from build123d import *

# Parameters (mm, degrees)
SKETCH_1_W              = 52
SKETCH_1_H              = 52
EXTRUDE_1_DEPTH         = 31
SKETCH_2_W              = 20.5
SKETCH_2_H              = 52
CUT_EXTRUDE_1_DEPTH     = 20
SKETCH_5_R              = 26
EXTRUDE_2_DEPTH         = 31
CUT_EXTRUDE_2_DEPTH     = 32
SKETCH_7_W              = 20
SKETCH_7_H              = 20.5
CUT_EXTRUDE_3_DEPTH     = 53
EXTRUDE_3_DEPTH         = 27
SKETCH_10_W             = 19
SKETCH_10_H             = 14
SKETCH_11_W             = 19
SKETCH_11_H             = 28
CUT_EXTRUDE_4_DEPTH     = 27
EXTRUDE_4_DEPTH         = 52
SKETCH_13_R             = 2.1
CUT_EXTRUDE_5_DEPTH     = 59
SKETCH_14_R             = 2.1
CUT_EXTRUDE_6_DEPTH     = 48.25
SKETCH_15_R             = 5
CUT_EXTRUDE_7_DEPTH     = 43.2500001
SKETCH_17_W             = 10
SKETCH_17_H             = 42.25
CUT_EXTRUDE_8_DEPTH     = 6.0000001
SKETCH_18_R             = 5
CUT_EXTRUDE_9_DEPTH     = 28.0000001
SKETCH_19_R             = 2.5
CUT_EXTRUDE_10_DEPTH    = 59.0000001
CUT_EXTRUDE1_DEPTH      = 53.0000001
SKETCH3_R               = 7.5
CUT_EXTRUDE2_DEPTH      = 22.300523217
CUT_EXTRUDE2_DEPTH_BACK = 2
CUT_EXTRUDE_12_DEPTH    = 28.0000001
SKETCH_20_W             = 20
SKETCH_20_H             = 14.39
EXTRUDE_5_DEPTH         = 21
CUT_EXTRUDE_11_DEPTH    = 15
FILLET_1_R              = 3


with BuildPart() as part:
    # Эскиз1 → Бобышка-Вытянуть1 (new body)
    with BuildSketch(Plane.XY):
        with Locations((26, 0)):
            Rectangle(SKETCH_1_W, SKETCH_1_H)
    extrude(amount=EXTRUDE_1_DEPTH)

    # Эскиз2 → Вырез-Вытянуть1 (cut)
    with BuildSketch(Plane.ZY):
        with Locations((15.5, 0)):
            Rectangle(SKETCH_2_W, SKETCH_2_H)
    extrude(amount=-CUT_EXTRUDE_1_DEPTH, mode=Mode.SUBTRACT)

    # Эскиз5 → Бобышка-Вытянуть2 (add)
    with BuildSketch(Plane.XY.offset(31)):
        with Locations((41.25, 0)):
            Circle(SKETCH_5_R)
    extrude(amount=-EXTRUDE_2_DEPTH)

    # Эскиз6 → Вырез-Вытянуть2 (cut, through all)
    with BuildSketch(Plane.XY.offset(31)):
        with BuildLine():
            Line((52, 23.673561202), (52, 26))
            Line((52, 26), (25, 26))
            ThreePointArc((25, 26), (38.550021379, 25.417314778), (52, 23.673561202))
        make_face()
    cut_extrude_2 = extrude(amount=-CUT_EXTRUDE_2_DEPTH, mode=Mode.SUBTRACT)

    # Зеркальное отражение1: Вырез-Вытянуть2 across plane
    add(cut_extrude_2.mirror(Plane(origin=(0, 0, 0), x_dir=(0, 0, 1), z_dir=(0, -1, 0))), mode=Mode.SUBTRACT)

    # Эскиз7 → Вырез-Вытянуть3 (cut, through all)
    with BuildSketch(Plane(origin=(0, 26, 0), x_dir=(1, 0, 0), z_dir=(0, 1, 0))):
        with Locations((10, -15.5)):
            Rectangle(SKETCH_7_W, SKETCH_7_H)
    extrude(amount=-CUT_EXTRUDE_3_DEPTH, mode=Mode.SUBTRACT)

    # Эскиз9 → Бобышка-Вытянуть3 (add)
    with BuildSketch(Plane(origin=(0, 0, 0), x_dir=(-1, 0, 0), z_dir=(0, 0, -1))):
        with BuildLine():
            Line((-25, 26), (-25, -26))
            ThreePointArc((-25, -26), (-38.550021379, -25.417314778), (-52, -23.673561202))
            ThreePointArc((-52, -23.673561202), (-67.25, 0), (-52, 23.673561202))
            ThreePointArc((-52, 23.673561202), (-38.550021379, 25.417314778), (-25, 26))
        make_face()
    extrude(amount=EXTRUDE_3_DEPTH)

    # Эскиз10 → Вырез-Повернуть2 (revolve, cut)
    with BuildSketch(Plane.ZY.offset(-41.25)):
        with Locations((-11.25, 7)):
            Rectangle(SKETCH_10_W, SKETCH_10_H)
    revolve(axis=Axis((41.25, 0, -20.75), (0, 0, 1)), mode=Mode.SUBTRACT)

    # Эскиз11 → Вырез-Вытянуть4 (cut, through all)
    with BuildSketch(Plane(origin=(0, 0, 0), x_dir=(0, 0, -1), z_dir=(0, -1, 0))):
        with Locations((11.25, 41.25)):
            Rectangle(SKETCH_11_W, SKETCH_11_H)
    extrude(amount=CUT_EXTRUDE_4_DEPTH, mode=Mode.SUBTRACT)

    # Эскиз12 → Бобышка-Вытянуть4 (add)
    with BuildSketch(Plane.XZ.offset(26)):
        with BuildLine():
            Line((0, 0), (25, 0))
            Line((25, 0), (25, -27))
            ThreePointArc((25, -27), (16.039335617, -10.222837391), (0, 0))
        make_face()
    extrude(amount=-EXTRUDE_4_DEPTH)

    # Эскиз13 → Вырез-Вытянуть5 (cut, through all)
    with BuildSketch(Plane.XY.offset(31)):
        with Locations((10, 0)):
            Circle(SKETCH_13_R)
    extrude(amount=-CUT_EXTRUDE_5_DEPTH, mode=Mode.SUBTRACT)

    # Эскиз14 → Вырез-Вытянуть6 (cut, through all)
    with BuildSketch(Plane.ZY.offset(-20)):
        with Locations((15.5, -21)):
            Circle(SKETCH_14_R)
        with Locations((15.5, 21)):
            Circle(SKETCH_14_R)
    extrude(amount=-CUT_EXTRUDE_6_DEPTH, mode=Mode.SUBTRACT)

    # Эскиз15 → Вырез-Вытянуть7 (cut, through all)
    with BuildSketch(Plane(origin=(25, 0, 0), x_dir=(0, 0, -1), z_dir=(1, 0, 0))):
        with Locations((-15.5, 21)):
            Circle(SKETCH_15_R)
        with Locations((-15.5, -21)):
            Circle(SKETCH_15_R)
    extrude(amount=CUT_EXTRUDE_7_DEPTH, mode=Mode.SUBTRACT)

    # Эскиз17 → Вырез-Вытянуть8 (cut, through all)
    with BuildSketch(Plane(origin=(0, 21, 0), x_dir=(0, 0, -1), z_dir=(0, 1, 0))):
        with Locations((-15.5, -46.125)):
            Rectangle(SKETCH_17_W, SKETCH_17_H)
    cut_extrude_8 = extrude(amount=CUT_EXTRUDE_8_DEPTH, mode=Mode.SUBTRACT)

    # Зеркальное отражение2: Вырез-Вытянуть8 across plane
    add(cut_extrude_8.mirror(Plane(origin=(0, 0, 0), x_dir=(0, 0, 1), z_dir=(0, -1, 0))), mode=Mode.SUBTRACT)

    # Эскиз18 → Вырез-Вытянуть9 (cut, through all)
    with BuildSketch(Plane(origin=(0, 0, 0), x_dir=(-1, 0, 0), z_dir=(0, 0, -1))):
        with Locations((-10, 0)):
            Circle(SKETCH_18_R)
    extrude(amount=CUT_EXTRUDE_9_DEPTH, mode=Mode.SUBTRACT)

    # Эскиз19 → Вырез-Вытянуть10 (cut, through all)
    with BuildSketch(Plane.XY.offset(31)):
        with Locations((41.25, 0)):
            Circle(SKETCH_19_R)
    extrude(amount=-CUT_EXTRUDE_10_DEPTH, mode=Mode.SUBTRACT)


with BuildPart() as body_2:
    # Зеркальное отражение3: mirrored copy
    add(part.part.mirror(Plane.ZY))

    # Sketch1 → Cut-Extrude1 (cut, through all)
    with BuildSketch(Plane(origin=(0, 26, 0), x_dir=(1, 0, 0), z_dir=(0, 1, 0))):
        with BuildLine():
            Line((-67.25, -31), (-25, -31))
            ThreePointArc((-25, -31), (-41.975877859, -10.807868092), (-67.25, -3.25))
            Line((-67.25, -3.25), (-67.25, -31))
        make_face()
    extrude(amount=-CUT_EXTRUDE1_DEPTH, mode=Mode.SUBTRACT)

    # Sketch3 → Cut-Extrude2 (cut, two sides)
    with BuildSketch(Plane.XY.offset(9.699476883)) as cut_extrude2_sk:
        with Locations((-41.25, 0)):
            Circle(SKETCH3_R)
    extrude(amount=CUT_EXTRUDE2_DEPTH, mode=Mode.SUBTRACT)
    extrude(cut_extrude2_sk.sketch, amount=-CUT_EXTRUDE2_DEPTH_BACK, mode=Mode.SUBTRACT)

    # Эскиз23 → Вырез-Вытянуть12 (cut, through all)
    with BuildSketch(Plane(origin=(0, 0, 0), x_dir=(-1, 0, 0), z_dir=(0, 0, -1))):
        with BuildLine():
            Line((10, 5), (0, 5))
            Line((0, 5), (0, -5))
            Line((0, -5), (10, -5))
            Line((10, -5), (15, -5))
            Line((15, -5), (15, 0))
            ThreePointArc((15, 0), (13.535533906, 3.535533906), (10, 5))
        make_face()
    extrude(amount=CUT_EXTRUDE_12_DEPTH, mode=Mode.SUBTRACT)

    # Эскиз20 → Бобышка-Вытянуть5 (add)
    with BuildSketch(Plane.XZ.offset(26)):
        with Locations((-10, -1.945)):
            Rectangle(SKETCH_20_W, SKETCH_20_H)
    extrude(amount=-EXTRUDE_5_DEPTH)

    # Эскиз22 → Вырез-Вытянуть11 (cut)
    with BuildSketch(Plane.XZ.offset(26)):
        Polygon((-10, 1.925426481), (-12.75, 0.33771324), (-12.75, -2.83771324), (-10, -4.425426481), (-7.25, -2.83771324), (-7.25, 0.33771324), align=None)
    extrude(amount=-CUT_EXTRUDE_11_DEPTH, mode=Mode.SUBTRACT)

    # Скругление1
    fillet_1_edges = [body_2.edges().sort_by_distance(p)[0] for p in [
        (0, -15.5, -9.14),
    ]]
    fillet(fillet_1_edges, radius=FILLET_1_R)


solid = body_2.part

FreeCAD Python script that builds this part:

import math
import FreeCAD as App
import Part
import Sketcher
from FreeCAD import Vector
Q = App.Units.Quantity


def edges_at(feature, points):
    """Names of the edges that pass closest to the given points."""
    edges = feature.Shape.Edges
    near = lambda p: min(range(len(edges)), key=lambda i: edges[i].distToShape(Part.Vertex(*p))[0])
    return sorted({f"Edge{near(p) + 1}" for p in points})

doc = App.newDocument("Part")
params = doc.addObject("Spreadsheet::Sheet", "Params")
for row, (alias, value) in enumerate([
    ("sketch1_width", "52 mm"),
    ("pad1_length", "31 mm"),
    ("sketch2_width", "52 mm"),
    ("sketch2_height", "20.5 mm"),
    ("pocket1_length", "20 mm"),
    ("sketch3_diameter", "52 mm"),
    ("pad2_length", "31 mm"),
    ("sketch4_width", "27 mm"),
    ("sketch5_width", "20 mm"),
    ("sketch5_height", "20.5 mm"),
    ("sketch6_radius", "26 mm"),
    ("sketch6_height", "52 mm"),
    ("pad3_length", "27 mm"),
    ("sketch7_width", "14 mm"),
    ("sketch7_height", "19 mm"),
    ("groove_angle", "360 deg"),
    ("sketch8_width", "28 mm"),
    ("sketch8_height", "19 mm"),
    ("sketch9_radius", "37.5 mm"),
    ("sketch9_width", "25 mm"),
    ("sketch9_height", "27 mm"),
    ("pad4_length", "52 mm"),
    ("sketch10_diameter", "4.2 mm"),
    ("sketch11_diameter", "4.2 mm"),
    ("sketch12_diameter", "10 mm"),
    ("sketch13_height", "10 mm"),
    ("sketch13_width", "42.25 mm"),
    ("sketch14_diameter", "10 mm"),
    ("sketch15_diameter", "5 mm"),
    ("sketch16_width", "42.25 mm"),
    ("sketch16_height", "27.75 mm"),
    ("sketch17_diameter", "15 mm"),
    ("pocket12_length", "22.300523 mm"),
    ("pocket12_length2", "2 mm"),
    ("sketch18_radius", "5 mm"),
    ("sketch19_width", "20 mm"),
    ("sketch19_height", "14.39 mm"),
    ("pad5_length", "21 mm"),
    ("pocket14_length", "15 mm"),
    ("fillet_radius", "3 mm"),
], start=1):
    params.set(f"A{row}", alias)
    params.set(f"B{row}", "=" + value)
    params.setAlias(f"B{row}", alias)

body = doc.addObject("PartDesign::Body", "Body")

# Sketch on XY plane
sketch1 = doc.addObject("Sketcher::SketchObject", "Sketch")
body.addObject(sketch1)
sketch1.AttachmentSupport = (doc.XY_Plane, [""])
sketch1.MapMode = "FlatFace"
sketch1.addGeometry(Part.LineSegment(Vector(0, 26, 0), Vector(0, -26, 0)), False)
sketch1.addGeometry(Part.LineSegment(Vector(0, -26, 0), Vector(52, -26, 0)), False)
sketch1.addGeometry(Part.LineSegment(Vector(52, -26, 0), Vector(52, 26, 0)), False)
sketch1.addGeometry(Part.LineSegment(Vector(52, 26, 0), Vector(0, 26, 0)), False)
sketch1.addConstraint(Sketcher.Constraint("Coincident", 0, 2, 1, 1))
sketch1.addConstraint(Sketcher.Constraint("Coincident", 1, 2, 2, 1))
sketch1.addConstraint(Sketcher.Constraint("Coincident", 2, 2, 3, 1))
sketch1.addConstraint(Sketcher.Constraint("Coincident", 3, 2, 0, 1))
sketch1.addConstraint(Sketcher.Constraint("Vertical", 0))
sketch1.addConstraint(Sketcher.Constraint("Horizontal", 1))
sketch1.addConstraint(Sketcher.Constraint("Vertical", 2))
sketch1.addConstraint(Sketcher.Constraint("Horizontal", 3))
sketch1.addConstraint(Sketcher.Constraint("Symmetric", 0, 2, 3, 2, -1, 1))
sketch1.addConstraint(Sketcher.Constraint("Equal", 3, 0))
sketch1.addConstraint(Sketcher.Constraint("DistanceX", 1, 1, 1, 2, 52.0))
sketch1.setExpression("Constraints[10]", "Params.sketch1_width")
pad1 = doc.addObject("PartDesign::Pad", "Pad")
body.addObject(pad1)
pad1.Profile = sketch1
pad1.setExpression("Length", "Params.pad1_length")

# Sketch on YZ plane
sketch2 = doc.addObject("Sketcher::SketchObject", "Sketch001")
body.addObject(sketch2)
sketch2.AttachmentSupport = (doc.YZ_Plane, [""])
sketch2.MapMode = "FlatFace"
sketch2.addGeometry(Part.LineSegment(Vector(26, 5, 0), Vector(-26, 5, 0)), False)
sketch2.addGeometry(Part.LineSegment(Vector(-26, 5, 0), Vector(-26, 26, 0)), False)
sketch2.addGeometry(Part.LineSegment(Vector(-26, 26, 0), Vector(26, 26, 0)), False)
sketch2.addGeometry(Part.LineSegment(Vector(26, 26, 0), Vector(26, 5, 0)), False)
sketch2.addConstraint(Sketcher.Constraint("Coincident", 0, 2, 1, 1))
sketch2.addConstraint(Sketcher.Constraint("Coincident", 1, 2, 2, 1))
sketch2.addConstraint(Sketcher.Constraint("Coincident", 2, 2, 3, 1))
sketch2.addConstraint(Sketcher.Constraint("Coincident", 3, 2, 0, 1))
sketch2.addConstraint(Sketcher.Constraint("Horizontal", 0))
sketch2.addConstraint(Sketcher.Constraint("Vertical", 1))
sketch2.addConstraint(Sketcher.Constraint("Horizontal", 2))
sketch2.addConstraint(Sketcher.Constraint("Vertical", 3))
sketch2.addConstraint(Sketcher.Constraint("DistanceX", 0, 2, 0, 1, 52.0))
sketch2.addConstraint(Sketcher.Constraint("DistanceY", 1, 1, 1, 2, 20.5))
sketch2.addConstraint(Sketcher.Constraint("DistanceX", 0, 2, -1, 1, 26.0))
sketch2.addConstraint(Sketcher.Constraint("DistanceY", -1, 1, 0, 2, 5.25))
sketch2.setExpression("Constraints[8]", "Params.sketch2_width")
sketch2.setExpression("Constraints[9]", "Params.sketch2_height")
pocket1 = doc.addObject("PartDesign::Pocket", "Pocket")
body.addObject(pocket1)
pocket1.Profile = sketch2
pocket1.setExpression("Length", "Params.pocket1_length")
pocket1.Reversed = True

# Sketch on XY plane
sketch3 = doc.addObject("Sketcher::SketchObject", "Sketch002")
body.addObject(sketch3)
sketch3.AttachmentSupport = (doc.XY_Plane, [""])
sketch3.MapMode = "FlatFace"
sketch3.AttachmentOffset = App.Placement(Vector(0, 0, 31), App.Rotation())
sketch3.addGeometry(Part.Circle(Vector(41, 0, 0), Vector(0, 0, 1), 26), False)
sketch3.addConstraint(Sketcher.Constraint("PointOnObject", 0, 3, -1))
sketch3.addConstraint(Sketcher.Constraint("Diameter", 0, 52.0))
sketch3.addConstraint(Sketcher.Constraint("DistanceX", -1, 1, 0, 3, 41.25))
sketch3.setExpression("Constraints[1]", "Params.sketch3_diameter")
pad2 = doc.addObject("PartDesign::Pad", "Pad001")
body.addObject(pad2)
pad2.Profile = sketch3
pad2.setExpression("Length", "Params.pad2_length")
pad2.Reversed = True

# Sketch on XY plane
sketch4 = doc.addObject("Sketcher::SketchObject", "Sketch003")
body.addObject(sketch4)
sketch4.AttachmentSupport = (doc.XY_Plane, [""])
sketch4.MapMode = "FlatFace"
sketch4.AttachmentOffset = App.Placement(Vector(0, 0, 31), App.Rotation())
sketch4.addGeometry(Part.LineSegment(Vector(52, 23.7, 0), Vector(52, 26, 0)), False)
sketch4.addGeometry(Part.LineSegment(Vector(52, 26, 0), Vector(25, 26, 0)), False)
sketch4.addGeometry(Part.ArcOfCircle(Part.Circle(Vector(25, -131.8, 0), Vector(0, 0, 1), 157.8), math.radians(80.15), math.radians(90)), False)
sketch4.addConstraint(Sketcher.Constraint("Coincident", 0, 2, 1, 1))
sketch4.addConstraint(Sketcher.Constraint("Tangent", 1, 2, 2, 2))
sketch4.addConstraint(Sketcher.Constraint("Coincident", 2, 1, 0, 1))
sketch4.addConstraint(Sketcher.Constraint("Vertical", 0))
sketch4.addConstraint(Sketcher.Constraint("Horizontal", 1))
sketch4.addConstraint(Sketcher.Constraint("DistanceX", 1, 2, 1, 1, 27.0))
sketch4.addConstraint(Sketcher.Constraint("DistanceX", -1, 1, 2, 3, 25.0))
sketch4.addConstraint(Sketcher.Constraint("DistanceY", -1, 1, 0, 2, 26.0))
sketch4.addConstraint(Sketcher.Constraint("Radius", 2, 157.840455))
sketch4.setExpression("Constraints[5]", "Params.sketch4_width")
pocket2 = doc.addObject("PartDesign::Pocket", "Pocket001")
body.addObject(pocket2)
pocket2.Profile = sketch4
pocket2.Type = "ThroughAll"
doc.recompute()

mirrored = doc.addObject("PartDesign::Mirrored", "Mirrored")
body.addObject(mirrored)
mirrored.Originals = [pocket2]
mirrored.MirrorPlane = (doc.XZ_Plane, [""])
body.Tip = mirrored

# Sketch on XZ plane
sketch5 = doc.addObject("Sketcher::SketchObject", "Sketch004")
body.addObject(sketch5)
sketch5.AttachmentSupport = (doc.XZ_Plane, [""])
sketch5.MapMode = "FlatFace"
sketch5.AttachmentOffset = App.Placement(Vector(0, 0, -26), App.Rotation())
sketch5.addGeometry(Part.LineSegment(Vector(0, 5, 0), Vector(0, 26, 0)), False)
sketch5.addGeometry(Part.LineSegment(Vector(0, 26, 0), Vector(20, 26, 0)), False)
sketch5.addGeometry(Part.LineSegment(Vector(20, 26, 0), Vector(20, 5, 0)), False)
sketch5.addGeometry(Part.LineSegment(Vector(20, 5, 0), Vector(0, 5, 0)), False)
sketch5.addConstraint(Sketcher.Constraint("Coincident", 0, 2, 1, 1))
sketch5.addConstraint(Sketcher.Constraint("Coincident", 1, 2, 2, 1))
sketch5.addConstraint(Sketcher.Constraint("Coincident", 2, 2, 3, 1))
sketch5.addConstraint(Sketcher.Constraint("Coincident", 3, 2, 0, 1))
sketch5.addConstraint(Sketcher.Constraint("Vertical", 0))
sketch5.addConstraint(Sketcher.Constraint("Horizontal", 1))
sketch5.addConstraint(Sketcher.Constraint("Vertical", 2))
sketch5.addConstraint(Sketcher.Constraint("Horizontal", 3))
sketch5.addConstraint(Sketcher.Constraint("PointOnObject", 0, 2, -2))
sketch5.addConstraint(Sketcher.Constraint("DistanceX", 1, 1, 1, 2, 20.0))
sketch5.addConstraint(Sketcher.Constraint("DistanceY", 0, 1, 0, 2, 20.5))
sketch5.addConstraint(Sketcher.Constraint("DistanceY", -1, 1, 0, 2, 25.75))
sketch5.setExpression("Constraints[9]", "Params.sketch5_width")
sketch5.setExpression("Constraints[10]", "Params.sketch5_height")
pocket3 = doc.addObject("PartDesign::Pocket", "Pocket002")
body.addObject(pocket3)
pocket3.Profile = sketch5
pocket3.Type = "ThroughAll"
pocket3.Reversed = True

# Sketch on XY plane
sketch6 = doc.addObject("Sketcher::SketchObject", "Sketch005")
body.addObject(sketch6)
sketch6.AttachmentSupport = (doc.XY_Plane, [""])
sketch6.MapMode = "FlatFace"
sketch6.addGeometry(Part.LineSegment(Vector(25, -26, 0), Vector(25, 26, 0)), False)
sketch6.addGeometry(Part.ArcOfCircle(Part.Circle(Vector(25, -132, 0), Vector(0, 0, 1), 158), math.radians(80.15), math.radians(90)), False)
sketch6.addGeometry(Part.ArcOfCircle(Part.Circle(Vector(41, 0, 0), Vector(0, 0, 1), 26), math.radians(-66), math.radians(66)), False)
sketch6.addGeometry(Part.ArcOfCircle(Part.Circle(Vector(25, 132, 0), Vector(0, 0, 1), 158), math.radians(-90), math.radians(-80.15)), False)
sketch6.addConstraint(Sketcher.Constraint("Coincident", 0, 2, 1, 2))
sketch6.addConstraint(Sketcher.Constraint("Coincident", 1, 1, 2, 2))
sketch6.addConstraint(Sketcher.Constraint("Coincident", 2, 1, 3, 2))
sketch6.addConstraint(Sketcher.Constraint("Coincident", 3, 1, 0, 1))
sketch6.addConstraint(Sketcher.Constraint("Vertical", 0))
sketch6.addConstraint(Sketcher.Constraint("Equal", 1, 3))
sketch6.addConstraint(Sketcher.Constraint("Symmetric", 1, 3, 3, 3, -1))
sketch6.addConstraint(Sketcher.Constraint("PointOnObject", 2, 3, -1))
sketch6.addConstraint(Sketcher.Constraint("Vertical", 3, 3, 0, 2))
sketch6.addConstraint(Sketcher.Constraint("Radius", 2, 26.0))
sketch6.addConstraint(Sketcher.Constraint("DistanceY", 0, 1, 0, 2, 52.0))
sketch6.addConstraint(Sketcher.Constraint("DistanceX", -1, 1, 1, 3, 25.0))
sketch6.addConstraint(Sketcher.Constraint("DistanceX", -1, 1, 1, 1, 52.0))
sketch6.addConstraint(Sketcher.Constraint("DistanceX", -1, 1, 2, 3, 41.25))
sketch6.setExpression("Constraints[9]", "Params.sketch6_radius")
sketch6.setExpression("Constraints[10]", "Params.sketch6_height")
pad3 = doc.addObject("PartDesign::Pad", "Pad002")
body.addObject(pad3)
pad3.Profile = sketch6
pad3.setExpression("Length", "Params.pad3_length")
pad3.Reversed = True

# Sketch on YZ plane
sketch7 = doc.addObject("Sketcher::SketchObject", "Sketch006")
body.addObject(sketch7)
sketch7.AttachmentSupport = (doc.YZ_Plane, [""])
sketch7.MapMode = "FlatFace"
sketch7.AttachmentOffset = App.Placement(Vector(0, 0, 41.25), App.Rotation())
sketch7.addGeometry(Part.LineSegment(Vector(14, -21, 0), Vector(0, -21, 0)), False)
sketch7.addGeometry(Part.LineSegment(Vector(0, -21, 0), Vector(0, -2, 0)), False)
sketch7.addGeometry(Part.LineSegment(Vector(0, -2, 0), Vector(14, -2, 0)), False)
sketch7.addGeometry(Part.LineSegment(Vector(14, -2, 0), Vector(14, -21, 0)), False)
sketch7.addConstraint(Sketcher.Constraint("Coincident", 0, 2, 1, 1))
sketch7.addConstraint(Sketcher.Constraint("Coincident", 1, 2, 2, 1))
sketch7.addConstraint(Sketcher.Constraint("Coincident", 2, 2, 3, 1))
sketch7.addConstraint(Sketcher.Constraint("Coincident", 3, 2, 0, 1))
sketch7.addConstraint(Sketcher.Constraint("Horizontal", 0))
sketch7.addConstraint(Sketcher.Constraint("Vertical", 1))
sketch7.addConstraint(Sketcher.Constraint("Horizontal", 2))
sketch7.addConstraint(Sketcher.Constraint("Vertical", 3))
sketch7.addConstraint(Sketcher.Constraint("PointOnObject", 0, 2, -2))
sketch7.addConstraint(Sketcher.Constraint("DistanceX", 0, 2, 0, 1, 14.0))
sketch7.addConstraint(Sketcher.Constraint("DistanceY", 1, 1, 1, 2, 19.0))
sketch7.addConstraint(Sketcher.Constraint("DistanceY", 0, 2, -1, 1, 20.75))
sketch7.setExpression("Constraints[9]", "Params.sketch7_width")
sketch7.setExpression("Constraints[10]", "Params.sketch7_height")
groove = doc.addObject("PartDesign::Groove", "Groove")
body.addObject(groove)
groove.Profile = sketch7
groove.ReferenceAxis = (sketch7, ["V_Axis"])
groove.setExpression("Angle", "Params.groove_angle")

# Sketch on XZ plane
sketch8 = doc.addObject("Sketcher::SketchObject", "Sketch007")
body.addObject(sketch8)
sketch8.AttachmentSupport = (doc.XZ_Plane, [""])
sketch8.MapMode = "FlatFace"
sketch8.addGeometry(Part.LineSegment(Vector(55, -2, 0), Vector(27, -2, 0)), False)
sketch8.addGeometry(Part.LineSegment(Vector(27, -2, 0), Vector(27, -21, 0)), False)
sketch8.addGeometry(Part.LineSegment(Vector(27, -21, 0), Vector(55, -21, 0)), False)
sketch8.addGeometry(Part.LineSegment(Vector(55, -21, 0), Vector(55, -2, 0)), False)
sketch8.addConstraint(Sketcher.Constraint("Coincident", 0, 2, 1, 1))
sketch8.addConstraint(Sketcher.Constraint("Coincident", 1, 2, 2, 1))
sketch8.addConstraint(Sketcher.Constraint("Coincident", 2, 2, 3, 1))
sketch8.addConstraint(Sketcher.Constraint("Coincident", 3, 2, 0, 1))
sketch8.addConstraint(Sketcher.Constraint("Horizontal", 0))
sketch8.addConstraint(Sketcher.Constraint("Vertical", 1))
sketch8.addConstraint(Sketcher.Constraint("Horizontal", 2))
sketch8.addConstraint(Sketcher.Constraint("Vertical", 3))
sketch8.addConstraint(Sketcher.Constraint("DistanceX", 0, 2, 0, 1, 28.0))
sketch8.addConstraint(Sketcher.Constraint("DistanceY", 1, 2, 1, 1, 19.0))
sketch8.addConstraint(Sketcher.Constraint("DistanceX", -1, 1, 0, 2, 27.25))
sketch8.addConstraint(Sketcher.Constraint("DistanceY", 0, 2, -1, 1, 1.75))
sketch8.setExpression("Constraints[8]", "Params.sketch8_width")
sketch8.setExpression("Constraints[9]", "Params.sketch8_height")
pocket4 = doc.addObject("PartDesign::Pocket", "Pocket003")
body.addObject(pocket4)
pocket4.Profile = sketch8
pocket4.Type = "ThroughAll"
pocket4.Reversed = True

# Sketch on XZ plane
sketch9 = doc.addObject("Sketcher::SketchObject", "Sketch008")
body.addObject(sketch9)
sketch9.AttachmentSupport = (doc.XZ_Plane, [""])
sketch9.MapMode = "FlatFace"
sketch9.AttachmentOffset = App.Placement(Vector(0, 0, 26), App.Rotation())
sketch9.addGeometry(Part.LineSegment(Vector(25, 0, 0), Vector(0, 0, 0)), False)
sketch9.addGeometry(Part.ArcOfCircle(Part.Circle(Vector(-11, -36, 0), Vector(0, 0, 1), 38), math.radians(13), math.radians(72)), False)
sketch9.addGeometry(Part.LineSegment(Vector(25, -27, 0), Vector(25, 0, 0)), False)
sketch9.addConstraint(Sketcher.Constraint("Coincident", 0, 2, 1, 2))
sketch9.addConstraint(Sketcher.Constraint("Coincident", 1, 1, 2, 1))
sketch9.addConstraint(Sketcher.Constraint("Coincident", 2, 2, 0, 1))
sketch9.addConstraint(Sketcher.Constraint("Horizontal", 0))
sketch9.addConstraint(Sketcher.Constraint("Vertical", 2))
sketch9.addConstraint(Sketcher.Constraint("Coincident", 0, 2, -1, 1))
sketch9.addConstraint(Sketcher.Constraint("Radius", 1, 37.5))
sketch9.addConstraint(Sketcher.Constraint("DistanceX", 0, 2, 0, 1, 25.0))
sketch9.addConstraint(Sketcher.Constraint("DistanceY", 2, 1, 2, 2, 27.0))
sketch9.setExpression("Constraints[6]", "Params.sketch9_radius")
sketch9.setExpression("Constraints[7]", "Params.sketch9_width")
sketch9.setExpression("Constraints[8]", "Params.sketch9_height")
pad4 = doc.addObject("PartDesign::Pad", "Pad003")
body.addObject(pad4)
pad4.Profile = sketch9
pad4.setExpression("Length", "Params.pad4_length")
pad4.Reversed = True

# Sketch on XY plane
sketch10 = doc.addObject("Sketcher::SketchObject", "Sketch009")
body.addObject(sketch10)
sketch10.AttachmentSupport = (doc.XY_Plane, [""])
sketch10.MapMode = "FlatFace"
sketch10.AttachmentOffset = App.Placement(Vector(0, 0, 31), App.Rotation())
sketch10.addGeometry(Part.Circle(Vector(10, 0, 0), Vector(0, 0, 1), 2.1), False)
sketch10.addConstraint(Sketcher.Constraint("PointOnObject", 0, 3, -1))
sketch10.addConstraint(Sketcher.Constraint("Diameter", 0, 4.2))
sketch10.addConstraint(Sketcher.Constraint("DistanceX", -1, 1, 0, 3, 10.0))
sketch10.setExpression("Constraints[1]", "Params.sketch10_diameter")
pocket5 = doc.addObject("PartDesign::Pocket", "Pocket004")
body.addObject(pocket5)
pocket5.Profile = sketch10
pocket5.Type = "ThroughAll"

# Sketch on YZ plane
sketch11 = doc.addObject("Sketcher::SketchObject", "Sketch010")
body.addObject(sketch11)
sketch11.AttachmentSupport = (doc.YZ_Plane, [""])
sketch11.MapMode = "FlatFace"
sketch11.AttachmentOffset = App.Placement(Vector(0, 0, 20), App.Rotation())
sketch11.addGeometry(Part.Circle(Vector(-21, 15.5, 0), Vector(0, 0, 1), 2.1), False)
sketch11.addGeometry(Part.Circle(Vector(21, 15.5, 0), Vector(0, 0, 1), 2.1), False)
sketch11.addConstraint(Sketcher.Constraint("Equal", 0, 1))
sketch11.addConstraint(Sketcher.Constraint("Symmetric", 0, 3, 1, 3, -2))
sketch11.addConstraint(Sketcher.Constraint("Diameter", 0, 4.2))
sketch11.addConstraint(Sketcher.Constraint("DistanceX", 0, 3, -1, 1, 21.0))
sketch11.addConstraint(Sketcher.Constraint("DistanceY", -1, 1, 0, 3, 15.5))
sketch11.setExpression("Constraints[2]", "Params.sketch11_diameter")
pocket6 = doc.addObject("PartDesign::Pocket", "Pocket005")
body.addObject(pocket6)
pocket6.Profile = sketch11
pocket6.Type = "ThroughAll"
pocket6.Reversed = True

# Sketch on YZ plane
sketch12 = doc.addObject("Sketcher::SketchObject", "Sketch011")
body.addObject(sketch12)
sketch12.AttachmentSupport = (doc.YZ_Plane, [""])
sketch12.MapMode = "FlatFace"
sketch12.AttachmentOffset = App.Placement(Vector(0, 0, 25), App.Rotation())
sketch12.addGeometry(Part.Circle(Vector(21, 16, 0), Vector(0, 0, 1), 5), False)
sketch12.addGeometry(Part.Circle(Vector(-21, 16, 0), Vector(0, 0, 1), 5), False)
sketch12.addConstraint(Sketcher.Constraint("Equal", 0, 1))
sketch12.addConstraint(Sketcher.Constraint("Symmetric", 0, 3, 1, 3, -2))
sketch12.addConstraint(Sketcher.Constraint("Diameter", 0, 10.0))
sketch12.addConstraint(Sketcher.Constraint("DistanceX", -1, 1, 0, 3, 21.0))
sketch12.addConstraint(Sketcher.Constraint("DistanceY", -1, 1, 0, 3, 15.5))
sketch12.setExpression("Constraints[2]", "Params.sketch12_diameter")
pocket7 = doc.addObject("PartDesign::Pocket", "Pocket006")
body.addObject(pocket7)
pocket7.Profile = sketch12
pocket7.Type = "ThroughAll"
pocket7.Reversed = True

# Sketch on XZ plane
sketch13 = doc.addObject("Sketcher::SketchObject", "Sketch012")
body.addObject(sketch13)
sketch13.AttachmentSupport = (doc.XZ_Plane, [""])
sketch13.MapMode = "FlatFace"
sketch13.AttachmentOffset = App.Placement(Vector(0, 0, -21), App.Rotation())
sketch13.addGeometry(Part.LineSegment(Vector(25, 20, 0), Vector(67, 20, 0)), False)
sketch13.addGeometry(Part.LineSegment(Vector(67, 20, 0), Vector(67, 10, 0)), False)
sketch13.addGeometry(Part.LineSegment(Vector(67, 10, 0), Vector(25, 10, 0)), False)
sketch13.addGeometry(Part.LineSegment(Vector(25, 10, 0), Vector(25, 20, 0)), False)
sketch13.addConstraint(Sketcher.Constraint("Coincident", 0, 2, 1, 1))
sketch13.addConstraint(Sketcher.Constraint("Coincident", 1, 2, 2, 1))
sketch13.addConstraint(Sketcher.Constraint("Coincident", 2, 2, 3, 1))
sketch13.addConstraint(Sketcher.Constraint("Coincident", 3, 2, 0, 1))
sketch13.addConstraint(Sketcher.Constraint("Horizontal", 0))
sketch13.addConstraint(Sketcher.Constraint("Vertical", 1))
sketch13.addConstraint(Sketcher.Constraint("Horizontal", 2))
sketch13.addConstraint(Sketcher.Constraint("Vertical", 3))
sketch13.addConstraint(Sketcher.Constraint("DistanceY", 1, 2, 1, 1, 10.0))
sketch13.addConstraint(Sketcher.Constraint("DistanceX", -1, 1, 2, 2, 25.0))
sketch13.addConstraint(Sketcher.Constraint("DistanceX", 0, 1, 0, 2, 42.25))
sketch13.addConstraint(Sketcher.Constraint("DistanceY", -1, 1, 0, 2, 20.5))
sketch13.setExpression("Constraints[8]", "Params.sketch13_height")
sketch13.setExpression("Constraints[10]", "Params.sketch13_width")
pocket8 = doc.addObject("PartDesign::Pocket", "Pocket007")
body.addObject(pocket8)
pocket8.Profile = sketch13
pocket8.Type = "ThroughAll"
doc.recompute()

mirrored2 = doc.addObject("PartDesign::Mirrored", "Mirrored001")
body.addObject(mirrored2)
mirrored2.Originals = [pocket8]
mirrored2.MirrorPlane = (doc.XZ_Plane, [""])
body.Tip = mirrored2

# Sketch on XY plane
sketch14 = doc.addObject("Sketcher::SketchObject", "Sketch013")
body.addObject(sketch14)
sketch14.AttachmentSupport = (doc.XY_Plane, [""])
sketch14.MapMode = "FlatFace"
sketch14.addGeometry(Part.Circle(Vector(10, 0, 0), Vector(0, 0, 1), 5), False)
sketch14.addConstraint(Sketcher.Constraint("PointOnObject", 0, 3, -1))
sketch14.addConstraint(Sketcher.Constraint("Diameter", 0, 10.0))
sketch14.addConstraint(Sketcher.Constraint("DistanceX", -1, 1, 0, 3, 10.0))
sketch14.setExpression("Constraints[1]", "Params.sketch14_diameter")
pocket9 = doc.addObject("PartDesign::Pocket", "Pocket008")
body.addObject(pocket9)
pocket9.Profile = sketch14
pocket9.Type = "ThroughAll"

# Sketch on XY plane
sketch15 = doc.addObject("Sketcher::SketchObject", "Sketch014")
body.addObject(sketch15)
sketch15.AttachmentSupport = (doc.XY_Plane, [""])
sketch15.MapMode = "FlatFace"
sketch15.AttachmentOffset = App.Placement(Vector(0, 0, 31), App.Rotation())
sketch15.addGeometry(Part.Circle(Vector(41.2, 0, 0), Vector(0, 0, 1), 2.5), False)
sketch15.addConstraint(Sketcher.Constraint("PointOnObject", 0, 3, -1))
sketch15.addConstraint(Sketcher.Constraint("Diameter", 0, 5.0))
sketch15.addConstraint(Sketcher.Constraint("DistanceX", -1, 1, 0, 3, 41.25))
sketch15.setExpression("Constraints[1]", "Params.sketch15_diameter")
pocket10 = doc.addObject("PartDesign::Pocket", "Pocket009")
body.addObject(pocket10)
pocket10.Profile = sketch15
pocket10.Type = "ThroughAll"
body2 = doc.addObject("PartDesign::Body", "Body001")
doc.recompute()

mirroring = doc.addObject("Part::Mirroring", "Mirroring")
mirroring.Source = body
mirroring.Base = Vector(0, 0, 0)
mirroring.Normal = Vector(-1, 0, 0)
body2.BaseFeature = mirroring
doc.recompute()

# Sketch on XZ plane
sketch16 = doc.addObject("Sketcher::SketchObject", "Sketch015")
body2.addObject(sketch16)
sketch16.AttachmentSupport = (doc.getObject("XZ_Plane001"), [""])
sketch16.MapMode = "FlatFace"
sketch16.AttachmentOffset = App.Placement(Vector(0, 0, -26), App.Rotation())
sketch16.addGeometry(Part.LineSegment(Vector(-67, 31, 0), Vector(-25, 31, 0)), False)
sketch16.addGeometry(Part.ArcOfCircle(Part.Circle(Vector(-67, 49, 0), Vector(0, 0, 1), 46), math.radians(-90), math.radians(-23)), False)
sketch16.addGeometry(Part.LineSegment(Vector(-67, 3, 0), Vector(-67, 31, 0)), False)
sketch16.addConstraint(Sketcher.Constraint("Coincident", 0, 2, 1, 2))
sketch16.addConstraint(Sketcher.Constraint("Coincident", 1, 1, 2, 1))
sketch16.addConstraint(Sketcher.Constraint("Coincident", 2, 2, 0, 1))
sketch16.addConstraint(Sketcher.Constraint("Horizontal", 0))
sketch16.addConstraint(Sketcher.Constraint("Vertical", 2))
sketch16.addConstraint(Sketcher.Constraint("DistanceX", 0, 2, -1, 1, 25.0))
sketch16.addConstraint(Sketcher.Constraint("DistanceY", -1, 1, 0, 2, 31.0))
sketch16.addConstraint(Sketcher.Constraint("DistanceX", 0, 1, 0, 2, 42.25))
sketch16.addConstraint(Sketcher.Constraint("DistanceY", 2, 1, 2, 2, 27.75))
sketch16.addConstraint(Sketcher.Constraint("DistanceX", 1, 3, -1, 1, 67.25))
sketch16.setExpression("Constraints[7]", "Params.sketch16_width")
sketch16.setExpression("Constraints[8]", "Params.sketch16_height")
pocket11 = doc.addObject("PartDesign::Pocket", "Pocket010")
body2.addObject(pocket11)
pocket11.Profile = sketch16
pocket11.Type = "ThroughAll"
pocket11.Reversed = True

# Sketch on XY plane
sketch17 = doc.addObject("Sketcher::SketchObject", "Sketch016")
body2.addObject(sketch17)
sketch17.AttachmentSupport = (doc.getObject("XY_Plane001"), [""])
sketch17.MapMode = "FlatFace"
sketch17.AttachmentOffset = App.Placement(Vector(0, 0, 9.699477), App.Rotation())
sketch17.addGeometry(Part.Circle(Vector(-41, 0, 0), Vector(0, 0, 1), 8), False)
sketch17.addConstraint(Sketcher.Constraint("PointOnObject", 0, 3, -1))
sketch17.addConstraint(Sketcher.Constraint("Diameter", 0, 15.0))
sketch17.addConstraint(Sketcher.Constraint("DistanceX", 0, 3, -1, 1, 41.25))
sketch17.setExpression("Constraints[1]", "Params.sketch17_diameter")
pocket12 = doc.addObject("PartDesign::Pocket", "Pocket011")
body2.addObject(pocket12)
pocket12.Profile = sketch17
pocket12.Type = "TwoLengths"
pocket12.setExpression("Length", "Params.pocket12_length")
pocket12.setExpression("Length2", "Params.pocket12_length2")
pocket12.Reversed = True

# Sketch on XY plane
sketch18 = doc.addObject("Sketcher::SketchObject", "Sketch017")
body2.addObject(sketch18)
sketch18.AttachmentSupport = (doc.getObject("XY_Plane001"), [""])
sketch18.MapMode = "FlatFace"
sketch18.addGeometry(Part.LineSegment(Vector(-10, 5, 0), Vector(0, 5, 0)), False)
sketch18.addGeometry(Part.LineSegment(Vector(0, 5, 0), Vector(0, -5, 0)), False)
sketch18.addGeometry(Part.LineSegment(Vector(0, -5, 0), Vector(-15, -5, 0)), False)
sketch18.addGeometry(Part.LineSegment(Vector(-15, -5, 0), Vector(-15, 0, 0)), False)
sketch18.addGeometry(Part.ArcOfCircle(Part.Circle(Vector(-10, 0, 0), Vector(0, 0, 1), 5), math.radians(90), math.radians(180)), False)
sketch18.addConstraint(Sketcher.Constraint("Coincident", 0, 2, 1, 1))
sketch18.addConstraint(Sketcher.Constraint("Coincident", 1, 2, 2, 1))
sketch18.addConstraint(Sketcher.Constraint("Coincident", 2, 2, 3, 1))
sketch18.addConstraint(Sketcher.Constraint("Tangent", 3, 2, 4, 2))
sketch18.addConstraint(Sketcher.Constraint("Tangent", 4, 1, 0, 1))
sketch18.addConstraint(Sketcher.Constraint("Horizontal", 0))
sketch18.addConstraint(Sketcher.Constraint("Vertical", 1))
sketch18.addConstraint(Sketcher.Constraint("Horizontal", 2))
sketch18.addConstraint(Sketcher.Constraint("Vertical", 3))
sketch18.addConstraint(Sketcher.Constraint("Symmetric", 0, 2, 1, 2, -1, 1))
sketch18.addConstraint(Sketcher.Constraint("PointOnObject", 4, 3, -1))
sketch18.addConstraint(Sketcher.Constraint("Equal", 0, 1))
sketch18.addConstraint(Sketcher.Constraint("Radius", 4, 5.0))
sketch18.setExpression("Constraints[12]", "Params.sketch18_radius")
pocket13 = doc.addObject("PartDesign::Pocket", "Pocket012")
body2.addObject(pocket13)
pocket13.Profile = sketch18
pocket13.Type = "ThroughAll"

# Sketch on XZ plane
sketch19 = doc.addObject("Sketcher::SketchObject", "Sketch018")
body2.addObject(sketch19)
sketch19.AttachmentSupport = (doc.getObject("XZ_Plane001"), [""])
sketch19.MapMode = "FlatFace"
sketch19.AttachmentOffset = App.Placement(Vector(0, 0, 26), App.Rotation())
sketch19.addGeometry(Part.LineSegment(Vector(-20, 5, 0), Vector(-20, -9, 0)), False)
sketch19.addGeometry(Part.LineSegment(Vector(-20, -9, 0), Vector(0, -9, 0)), False)
sketch19.addGeometry(Part.LineSegment(Vector(0, -9, 0), Vector(0, 5, 0)), False)
sketch19.addGeometry(Part.LineSegment(Vector(0, 5, 0), Vector(-20, 5, 0)), False)
sketch19.addConstraint(Sketcher.Constraint("Coincident", 0, 2, 1, 1))
sketch19.addConstraint(Sketcher.Constraint("Coincident", 1, 2, 2, 1))
sketch19.addConstraint(Sketcher.Constraint("Coincident", 2, 2, 3, 1))
sketch19.addConstraint(Sketcher.Constraint("Coincident", 3, 2, 0, 1))
sketch19.addConstraint(Sketcher.Constraint("Vertical", 0))
sketch19.addConstraint(Sketcher.Constraint("Horizontal", 1))
sketch19.addConstraint(Sketcher.Constraint("Vertical", 2))
sketch19.addConstraint(Sketcher.Constraint("Horizontal", 3))
sketch19.addConstraint(Sketcher.Constraint("PointOnObject", 1, 2, -2))
sketch19.addConstraint(Sketcher.Constraint("DistanceX", 1, 1, 1, 2, 20.0))
sketch19.addConstraint(Sketcher.Constraint("DistanceY", 0, 2, 0, 1, 14.39))
sketch19.addConstraint(Sketcher.Constraint("DistanceY", 0, 2, -1, 1, 9.14))
sketch19.setExpression("Constraints[9]", "Params.sketch19_width")
sketch19.setExpression("Constraints[10]", "Params.sketch19_height")
pad5 = doc.addObject("PartDesign::Pad", "Pad004")
body2.addObject(pad5)
pad5.Profile = sketch19
pad5.setExpression("Length", "Params.pad5_length")
pad5.Reversed = True

# Sketch on XZ plane
sketch20 = doc.addObject("Sketcher::SketchObject", "Sketch019")
body2.addObject(sketch20)
sketch20.AttachmentSupport = (doc.getObject("XZ_Plane001"), [""])
sketch20.MapMode = "FlatFace"
sketch20.AttachmentOffset = App.Placement(Vector(0, 0, 26), App.Rotation())
sketch20.addGeometry(Part.LineSegment(Vector(-10, 1.9, 0), Vector(-12.8, 0.3, 0)), False)
sketch20.addGeometry(Part.LineSegment(Vector(-12.8, 0.3, 0), Vector(-12.8, -2.8, 0)), False)
sketch20.addGeometry(Part.LineSegment(Vector(-12.8, -2.8, 0), Vector(-10, -4.4, 0)), False)
sketch20.addGeometry(Part.LineSegment(Vector(-10, -4.4, 0), Vector(-7.2, -2.8, 0)), False)
sketch20.addGeometry(Part.LineSegment(Vector(-7.2, -2.8, 0), Vector(-7.2, 0.3, 0)), False)
sketch20.addGeometry(Part.LineSegment(Vector(-7.2, 0.3, 0), Vector(-10, 1.9, 0)), False)
sketch20.addConstraint(Sketcher.Constraint("Coincident", 0, 2, 1, 1))
sketch20.addConstraint(Sketcher.Constraint("Coincident", 1, 2, 2, 1))
sketch20.addConstraint(Sketcher.Constraint("Coincident", 2, 2, 3, 1))
sketch20.addConstraint(Sketcher.Constraint("Coincident", 3, 2, 4, 1))
sketch20.addConstraint(Sketcher.Constraint("Coincident", 4, 2, 5, 1))
sketch20.addConstraint(Sketcher.Constraint("Coincident", 5, 2, 0, 1))
sketch20.addConstraint(Sketcher.Constraint("Vertical", 1))
sketch20.addConstraint(Sketcher.Constraint("Vertical", 4))
sketch20.addConstraint(Sketcher.Constraint("Parallel", 0, 3))
sketch20.addConstraint(Sketcher.Constraint("Parallel", 2, 5))
sketch20.addConstraint(Sketcher.Constraint("Horizontal", 1, 2, 3, 2))
sketch20.addConstraint(Sketcher.Constraint("Horizontal", 0, 2, 4, 2))
sketch20.addConstraint(Sketcher.Constraint("Vertical", 2, 2, 5, 2))
sketch20.addConstraint(Sketcher.Constraint("Angle", 0, Q("-150 deg")))
sketch20.addConstraint(Sketcher.Constraint("DistanceX", 2, 2, -1, 1, 10.0))
sketch20.addConstraint(Sketcher.Constraint("DistanceX", 1, 2, 3, 2, 5.5))
sketch20.addConstraint(Sketcher.Constraint("DistanceY", 1, 2, 1, 1, 3.175426))
sketch20.addConstraint(Sketcher.Constraint("DistanceY", -1, 1, 0, 2, 0.337713))
pocket14 = doc.addObject("PartDesign::Pocket", "Pocket013")
body2.addObject(pocket14)
pocket14.Profile = sketch20
pocket14.setExpression("Length", "Params.pocket14_length")
doc.recompute()

fillet = doc.addObject("PartDesign::Fillet", "Fillet")
body2.addObject(fillet)
fillet.Base = (pocket14, edges_at(pocket14, [(0, -15.5, -9.14)]))
fillet.setExpression("Radius", "Params.fillet_radius")
body.Visibility = False
mirroring.Visibility = False

doc.recompute()
